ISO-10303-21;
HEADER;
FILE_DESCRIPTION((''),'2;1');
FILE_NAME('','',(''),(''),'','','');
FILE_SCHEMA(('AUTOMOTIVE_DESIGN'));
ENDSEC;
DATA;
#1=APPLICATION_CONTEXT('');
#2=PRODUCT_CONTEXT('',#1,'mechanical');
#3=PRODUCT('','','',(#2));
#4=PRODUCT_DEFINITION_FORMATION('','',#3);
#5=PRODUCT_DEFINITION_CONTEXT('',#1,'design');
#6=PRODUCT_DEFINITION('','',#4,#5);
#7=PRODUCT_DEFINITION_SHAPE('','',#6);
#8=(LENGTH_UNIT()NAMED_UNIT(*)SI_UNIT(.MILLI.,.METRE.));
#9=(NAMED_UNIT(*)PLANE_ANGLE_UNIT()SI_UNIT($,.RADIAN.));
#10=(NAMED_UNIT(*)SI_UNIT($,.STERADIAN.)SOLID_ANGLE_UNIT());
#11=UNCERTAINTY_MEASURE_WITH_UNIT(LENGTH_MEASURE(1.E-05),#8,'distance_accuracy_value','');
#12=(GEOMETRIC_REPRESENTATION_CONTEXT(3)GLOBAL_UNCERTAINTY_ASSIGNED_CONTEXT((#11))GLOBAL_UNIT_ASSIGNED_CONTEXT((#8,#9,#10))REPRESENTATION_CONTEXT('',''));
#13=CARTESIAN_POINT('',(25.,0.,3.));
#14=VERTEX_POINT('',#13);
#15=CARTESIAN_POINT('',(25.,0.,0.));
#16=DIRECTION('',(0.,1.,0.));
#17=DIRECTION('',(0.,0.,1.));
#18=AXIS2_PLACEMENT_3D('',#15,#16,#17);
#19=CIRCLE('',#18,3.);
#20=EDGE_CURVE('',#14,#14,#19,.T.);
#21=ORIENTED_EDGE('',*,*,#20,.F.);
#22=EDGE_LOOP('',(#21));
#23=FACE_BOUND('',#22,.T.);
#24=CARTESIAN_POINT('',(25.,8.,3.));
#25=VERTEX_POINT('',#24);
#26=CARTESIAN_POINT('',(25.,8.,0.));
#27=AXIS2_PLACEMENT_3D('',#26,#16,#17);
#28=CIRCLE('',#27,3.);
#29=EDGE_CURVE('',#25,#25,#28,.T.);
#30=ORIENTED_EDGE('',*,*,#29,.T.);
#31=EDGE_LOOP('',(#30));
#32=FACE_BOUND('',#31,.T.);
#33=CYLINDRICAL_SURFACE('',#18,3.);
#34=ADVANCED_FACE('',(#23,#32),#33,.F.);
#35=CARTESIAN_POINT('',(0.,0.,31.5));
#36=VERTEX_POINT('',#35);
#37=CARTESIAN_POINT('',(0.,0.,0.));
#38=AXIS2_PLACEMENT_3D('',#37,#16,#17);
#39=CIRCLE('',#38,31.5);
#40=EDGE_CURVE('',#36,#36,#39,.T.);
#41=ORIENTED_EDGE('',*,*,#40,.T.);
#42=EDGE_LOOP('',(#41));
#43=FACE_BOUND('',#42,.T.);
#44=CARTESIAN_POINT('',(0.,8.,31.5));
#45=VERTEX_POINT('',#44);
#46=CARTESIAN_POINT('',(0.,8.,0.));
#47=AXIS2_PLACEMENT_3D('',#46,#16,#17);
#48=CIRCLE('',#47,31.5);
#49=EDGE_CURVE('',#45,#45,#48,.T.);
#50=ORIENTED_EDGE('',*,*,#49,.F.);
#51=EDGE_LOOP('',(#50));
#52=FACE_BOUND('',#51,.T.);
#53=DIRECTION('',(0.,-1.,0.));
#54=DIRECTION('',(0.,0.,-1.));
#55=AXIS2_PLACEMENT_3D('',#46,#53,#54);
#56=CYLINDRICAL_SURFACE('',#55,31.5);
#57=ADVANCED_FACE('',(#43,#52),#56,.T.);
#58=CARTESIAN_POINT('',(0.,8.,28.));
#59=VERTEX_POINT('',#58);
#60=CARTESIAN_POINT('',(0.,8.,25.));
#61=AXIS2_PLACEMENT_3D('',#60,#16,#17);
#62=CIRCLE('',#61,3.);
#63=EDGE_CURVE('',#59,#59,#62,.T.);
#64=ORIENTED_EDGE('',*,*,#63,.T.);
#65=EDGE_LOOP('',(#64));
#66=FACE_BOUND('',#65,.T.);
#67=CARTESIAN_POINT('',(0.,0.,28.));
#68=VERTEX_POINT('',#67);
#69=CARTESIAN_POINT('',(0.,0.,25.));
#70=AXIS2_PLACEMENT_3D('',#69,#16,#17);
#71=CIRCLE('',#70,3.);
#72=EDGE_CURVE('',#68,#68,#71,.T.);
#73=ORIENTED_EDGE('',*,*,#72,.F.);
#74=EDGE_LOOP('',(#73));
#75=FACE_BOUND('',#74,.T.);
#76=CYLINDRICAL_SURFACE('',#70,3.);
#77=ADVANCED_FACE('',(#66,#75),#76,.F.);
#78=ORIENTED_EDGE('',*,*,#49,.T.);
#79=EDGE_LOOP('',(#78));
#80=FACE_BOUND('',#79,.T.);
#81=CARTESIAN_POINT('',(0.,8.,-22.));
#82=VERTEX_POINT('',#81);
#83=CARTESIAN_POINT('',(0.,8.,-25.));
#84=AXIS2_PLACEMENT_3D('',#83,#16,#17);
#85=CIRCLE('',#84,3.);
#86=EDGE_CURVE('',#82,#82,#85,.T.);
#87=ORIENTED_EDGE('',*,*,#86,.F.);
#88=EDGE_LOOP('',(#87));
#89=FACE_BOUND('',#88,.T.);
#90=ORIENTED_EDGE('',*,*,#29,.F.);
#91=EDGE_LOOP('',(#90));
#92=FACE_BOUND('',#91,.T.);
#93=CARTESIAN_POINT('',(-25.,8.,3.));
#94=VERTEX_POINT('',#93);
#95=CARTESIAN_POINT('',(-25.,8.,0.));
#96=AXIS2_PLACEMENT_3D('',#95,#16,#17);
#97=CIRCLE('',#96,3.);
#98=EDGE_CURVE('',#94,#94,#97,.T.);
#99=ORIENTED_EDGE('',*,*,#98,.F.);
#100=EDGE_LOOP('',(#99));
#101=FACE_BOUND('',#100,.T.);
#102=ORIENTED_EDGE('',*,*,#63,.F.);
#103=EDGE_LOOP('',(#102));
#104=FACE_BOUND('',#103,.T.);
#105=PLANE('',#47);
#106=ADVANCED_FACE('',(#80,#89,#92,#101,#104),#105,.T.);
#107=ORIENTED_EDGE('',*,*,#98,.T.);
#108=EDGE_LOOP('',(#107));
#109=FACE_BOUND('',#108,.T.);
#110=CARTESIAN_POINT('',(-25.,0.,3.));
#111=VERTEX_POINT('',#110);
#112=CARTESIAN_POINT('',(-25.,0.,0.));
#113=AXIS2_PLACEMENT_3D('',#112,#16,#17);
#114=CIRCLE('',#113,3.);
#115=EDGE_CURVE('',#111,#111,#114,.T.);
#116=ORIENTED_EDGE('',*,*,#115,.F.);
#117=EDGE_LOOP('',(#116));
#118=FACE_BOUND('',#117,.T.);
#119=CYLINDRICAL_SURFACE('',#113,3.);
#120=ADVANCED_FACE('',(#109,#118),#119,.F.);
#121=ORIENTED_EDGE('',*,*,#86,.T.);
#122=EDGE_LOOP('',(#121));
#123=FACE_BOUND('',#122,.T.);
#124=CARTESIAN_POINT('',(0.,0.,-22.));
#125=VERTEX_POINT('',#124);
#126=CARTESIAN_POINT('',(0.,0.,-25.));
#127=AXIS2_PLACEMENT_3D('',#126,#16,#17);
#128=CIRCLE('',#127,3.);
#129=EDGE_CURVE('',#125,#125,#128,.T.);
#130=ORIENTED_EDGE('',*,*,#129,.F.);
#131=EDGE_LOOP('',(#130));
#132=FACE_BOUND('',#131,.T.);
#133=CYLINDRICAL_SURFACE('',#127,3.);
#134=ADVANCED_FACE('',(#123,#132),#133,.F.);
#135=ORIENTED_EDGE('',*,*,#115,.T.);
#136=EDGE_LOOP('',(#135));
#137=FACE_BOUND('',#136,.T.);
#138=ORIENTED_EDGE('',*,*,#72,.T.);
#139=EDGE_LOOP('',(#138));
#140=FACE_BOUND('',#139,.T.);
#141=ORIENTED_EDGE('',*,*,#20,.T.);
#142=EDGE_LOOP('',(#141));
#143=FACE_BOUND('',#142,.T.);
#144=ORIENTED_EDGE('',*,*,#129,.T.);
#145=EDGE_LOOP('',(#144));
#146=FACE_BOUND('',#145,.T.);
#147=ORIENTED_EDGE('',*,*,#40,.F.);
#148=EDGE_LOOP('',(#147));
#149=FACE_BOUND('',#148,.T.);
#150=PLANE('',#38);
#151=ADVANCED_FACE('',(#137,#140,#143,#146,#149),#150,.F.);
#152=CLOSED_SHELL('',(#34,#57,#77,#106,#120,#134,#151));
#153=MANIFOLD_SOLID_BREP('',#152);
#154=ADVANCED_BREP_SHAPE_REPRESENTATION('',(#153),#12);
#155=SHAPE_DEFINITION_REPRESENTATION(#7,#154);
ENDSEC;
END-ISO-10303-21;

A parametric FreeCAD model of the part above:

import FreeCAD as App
import Part
import Sketcher
Q = App.Units.Quantity

doc = App.newDocument("Part")
body = doc.addObject("PartDesign::Body", "Body")

sketch1 = doc.addObject("Sketcher::SketchObject", "Sketch")
body.addObject(sketch1)
sketch1.AttachmentSupport = (doc.XZ_Plane, [""])
sketch1.MapMode = "FlatFace"
sketch1.addGeometry(Part.Circle(App.Vector(0, 0, 0), App.Vector(0, 0, 1), 32), False)
sketch1.addConstraint(Sketcher.Constraint("Coincident", 0, 3, -1, 1))
sketch1.addConstraint(Sketcher.Constraint("Diameter", 0, Q("63 mm")))
pad1 = doc.addObject("PartDesign::Pad", "Pad")
body.addObject(pad1)
pad1.Profile = sketch1
pad1.Length = 8
pad1.Reversed = True

sketch2 = doc.addObject("Sketcher::SketchObject", "Sketch001")
body.addObject(sketch2)
sketch2.AttachmentSupport = (doc.XZ_Plane, [""])
sketch2.MapMode = "FlatFace"
sketch2.AttachmentOffset = App.Placement(App.Vector(0, 0, -8), App.Rotation())
sketch2.addGeometry(Part.Circle(App.Vector(0, -25, 0), App.Vector(0, 0, 1), 3), False)
sketch2.addGeometry(Part.Circle(App.Vector(-25, 0, 0), App.Vector(0, 0, 1), 3), False)
sketch2.addGeometry(Part.Circle(App.Vector(0, 25, 0), App.Vector(0, 0, 1), 3), False)
sketch2.addGeometry(Part.Circle(App.Vector(25, 0, 0), App.Vector(0, 0, 1), 3), False)
sketch2.addConstraint(Sketcher.Constraint("Equal", 0, 1))
sketch2.addConstraint(Sketcher.Constraint("Equal", 1, 2))
sketch2.addConstraint(Sketcher.Constraint("Equal", 2, 3))
sketch2.addConstraint(Sketcher.Constraint("Symmetric", 0, 3, 2, 3, -1, 1))
sketch2.addConstraint(Sketcher.Constraint("Symmetric", 1, 3, 3, 3, -1, 1))
sketch2.addConstraint(Sketcher.Constraint("PointOnObject", 0, 3, -2))
sketch2.addConstraint(Sketcher.Constraint("PointOnObject", 1, 3, -1))
sketch2.addConstraint(Sketcher.Constraint("Diameter", 0, Q("6 mm")))
sketch2.addConstraint(Sketcher.Constraint("DistanceY", 0, 3, -1, 1, Q("25 mm")))
sketch2.addConstraint(Sketcher.Constraint("DistanceX", 1, 3, -1, 1, Q("25 mm")))
pocket1 = doc.addObject("PartDesign::Pocket", "Pocket")
body.addObject(pocket1)
pocket1.Profile = sketch2
pocket1.Type = "ThroughAll"
pocket1.Reversed = True

doc.recompute()
